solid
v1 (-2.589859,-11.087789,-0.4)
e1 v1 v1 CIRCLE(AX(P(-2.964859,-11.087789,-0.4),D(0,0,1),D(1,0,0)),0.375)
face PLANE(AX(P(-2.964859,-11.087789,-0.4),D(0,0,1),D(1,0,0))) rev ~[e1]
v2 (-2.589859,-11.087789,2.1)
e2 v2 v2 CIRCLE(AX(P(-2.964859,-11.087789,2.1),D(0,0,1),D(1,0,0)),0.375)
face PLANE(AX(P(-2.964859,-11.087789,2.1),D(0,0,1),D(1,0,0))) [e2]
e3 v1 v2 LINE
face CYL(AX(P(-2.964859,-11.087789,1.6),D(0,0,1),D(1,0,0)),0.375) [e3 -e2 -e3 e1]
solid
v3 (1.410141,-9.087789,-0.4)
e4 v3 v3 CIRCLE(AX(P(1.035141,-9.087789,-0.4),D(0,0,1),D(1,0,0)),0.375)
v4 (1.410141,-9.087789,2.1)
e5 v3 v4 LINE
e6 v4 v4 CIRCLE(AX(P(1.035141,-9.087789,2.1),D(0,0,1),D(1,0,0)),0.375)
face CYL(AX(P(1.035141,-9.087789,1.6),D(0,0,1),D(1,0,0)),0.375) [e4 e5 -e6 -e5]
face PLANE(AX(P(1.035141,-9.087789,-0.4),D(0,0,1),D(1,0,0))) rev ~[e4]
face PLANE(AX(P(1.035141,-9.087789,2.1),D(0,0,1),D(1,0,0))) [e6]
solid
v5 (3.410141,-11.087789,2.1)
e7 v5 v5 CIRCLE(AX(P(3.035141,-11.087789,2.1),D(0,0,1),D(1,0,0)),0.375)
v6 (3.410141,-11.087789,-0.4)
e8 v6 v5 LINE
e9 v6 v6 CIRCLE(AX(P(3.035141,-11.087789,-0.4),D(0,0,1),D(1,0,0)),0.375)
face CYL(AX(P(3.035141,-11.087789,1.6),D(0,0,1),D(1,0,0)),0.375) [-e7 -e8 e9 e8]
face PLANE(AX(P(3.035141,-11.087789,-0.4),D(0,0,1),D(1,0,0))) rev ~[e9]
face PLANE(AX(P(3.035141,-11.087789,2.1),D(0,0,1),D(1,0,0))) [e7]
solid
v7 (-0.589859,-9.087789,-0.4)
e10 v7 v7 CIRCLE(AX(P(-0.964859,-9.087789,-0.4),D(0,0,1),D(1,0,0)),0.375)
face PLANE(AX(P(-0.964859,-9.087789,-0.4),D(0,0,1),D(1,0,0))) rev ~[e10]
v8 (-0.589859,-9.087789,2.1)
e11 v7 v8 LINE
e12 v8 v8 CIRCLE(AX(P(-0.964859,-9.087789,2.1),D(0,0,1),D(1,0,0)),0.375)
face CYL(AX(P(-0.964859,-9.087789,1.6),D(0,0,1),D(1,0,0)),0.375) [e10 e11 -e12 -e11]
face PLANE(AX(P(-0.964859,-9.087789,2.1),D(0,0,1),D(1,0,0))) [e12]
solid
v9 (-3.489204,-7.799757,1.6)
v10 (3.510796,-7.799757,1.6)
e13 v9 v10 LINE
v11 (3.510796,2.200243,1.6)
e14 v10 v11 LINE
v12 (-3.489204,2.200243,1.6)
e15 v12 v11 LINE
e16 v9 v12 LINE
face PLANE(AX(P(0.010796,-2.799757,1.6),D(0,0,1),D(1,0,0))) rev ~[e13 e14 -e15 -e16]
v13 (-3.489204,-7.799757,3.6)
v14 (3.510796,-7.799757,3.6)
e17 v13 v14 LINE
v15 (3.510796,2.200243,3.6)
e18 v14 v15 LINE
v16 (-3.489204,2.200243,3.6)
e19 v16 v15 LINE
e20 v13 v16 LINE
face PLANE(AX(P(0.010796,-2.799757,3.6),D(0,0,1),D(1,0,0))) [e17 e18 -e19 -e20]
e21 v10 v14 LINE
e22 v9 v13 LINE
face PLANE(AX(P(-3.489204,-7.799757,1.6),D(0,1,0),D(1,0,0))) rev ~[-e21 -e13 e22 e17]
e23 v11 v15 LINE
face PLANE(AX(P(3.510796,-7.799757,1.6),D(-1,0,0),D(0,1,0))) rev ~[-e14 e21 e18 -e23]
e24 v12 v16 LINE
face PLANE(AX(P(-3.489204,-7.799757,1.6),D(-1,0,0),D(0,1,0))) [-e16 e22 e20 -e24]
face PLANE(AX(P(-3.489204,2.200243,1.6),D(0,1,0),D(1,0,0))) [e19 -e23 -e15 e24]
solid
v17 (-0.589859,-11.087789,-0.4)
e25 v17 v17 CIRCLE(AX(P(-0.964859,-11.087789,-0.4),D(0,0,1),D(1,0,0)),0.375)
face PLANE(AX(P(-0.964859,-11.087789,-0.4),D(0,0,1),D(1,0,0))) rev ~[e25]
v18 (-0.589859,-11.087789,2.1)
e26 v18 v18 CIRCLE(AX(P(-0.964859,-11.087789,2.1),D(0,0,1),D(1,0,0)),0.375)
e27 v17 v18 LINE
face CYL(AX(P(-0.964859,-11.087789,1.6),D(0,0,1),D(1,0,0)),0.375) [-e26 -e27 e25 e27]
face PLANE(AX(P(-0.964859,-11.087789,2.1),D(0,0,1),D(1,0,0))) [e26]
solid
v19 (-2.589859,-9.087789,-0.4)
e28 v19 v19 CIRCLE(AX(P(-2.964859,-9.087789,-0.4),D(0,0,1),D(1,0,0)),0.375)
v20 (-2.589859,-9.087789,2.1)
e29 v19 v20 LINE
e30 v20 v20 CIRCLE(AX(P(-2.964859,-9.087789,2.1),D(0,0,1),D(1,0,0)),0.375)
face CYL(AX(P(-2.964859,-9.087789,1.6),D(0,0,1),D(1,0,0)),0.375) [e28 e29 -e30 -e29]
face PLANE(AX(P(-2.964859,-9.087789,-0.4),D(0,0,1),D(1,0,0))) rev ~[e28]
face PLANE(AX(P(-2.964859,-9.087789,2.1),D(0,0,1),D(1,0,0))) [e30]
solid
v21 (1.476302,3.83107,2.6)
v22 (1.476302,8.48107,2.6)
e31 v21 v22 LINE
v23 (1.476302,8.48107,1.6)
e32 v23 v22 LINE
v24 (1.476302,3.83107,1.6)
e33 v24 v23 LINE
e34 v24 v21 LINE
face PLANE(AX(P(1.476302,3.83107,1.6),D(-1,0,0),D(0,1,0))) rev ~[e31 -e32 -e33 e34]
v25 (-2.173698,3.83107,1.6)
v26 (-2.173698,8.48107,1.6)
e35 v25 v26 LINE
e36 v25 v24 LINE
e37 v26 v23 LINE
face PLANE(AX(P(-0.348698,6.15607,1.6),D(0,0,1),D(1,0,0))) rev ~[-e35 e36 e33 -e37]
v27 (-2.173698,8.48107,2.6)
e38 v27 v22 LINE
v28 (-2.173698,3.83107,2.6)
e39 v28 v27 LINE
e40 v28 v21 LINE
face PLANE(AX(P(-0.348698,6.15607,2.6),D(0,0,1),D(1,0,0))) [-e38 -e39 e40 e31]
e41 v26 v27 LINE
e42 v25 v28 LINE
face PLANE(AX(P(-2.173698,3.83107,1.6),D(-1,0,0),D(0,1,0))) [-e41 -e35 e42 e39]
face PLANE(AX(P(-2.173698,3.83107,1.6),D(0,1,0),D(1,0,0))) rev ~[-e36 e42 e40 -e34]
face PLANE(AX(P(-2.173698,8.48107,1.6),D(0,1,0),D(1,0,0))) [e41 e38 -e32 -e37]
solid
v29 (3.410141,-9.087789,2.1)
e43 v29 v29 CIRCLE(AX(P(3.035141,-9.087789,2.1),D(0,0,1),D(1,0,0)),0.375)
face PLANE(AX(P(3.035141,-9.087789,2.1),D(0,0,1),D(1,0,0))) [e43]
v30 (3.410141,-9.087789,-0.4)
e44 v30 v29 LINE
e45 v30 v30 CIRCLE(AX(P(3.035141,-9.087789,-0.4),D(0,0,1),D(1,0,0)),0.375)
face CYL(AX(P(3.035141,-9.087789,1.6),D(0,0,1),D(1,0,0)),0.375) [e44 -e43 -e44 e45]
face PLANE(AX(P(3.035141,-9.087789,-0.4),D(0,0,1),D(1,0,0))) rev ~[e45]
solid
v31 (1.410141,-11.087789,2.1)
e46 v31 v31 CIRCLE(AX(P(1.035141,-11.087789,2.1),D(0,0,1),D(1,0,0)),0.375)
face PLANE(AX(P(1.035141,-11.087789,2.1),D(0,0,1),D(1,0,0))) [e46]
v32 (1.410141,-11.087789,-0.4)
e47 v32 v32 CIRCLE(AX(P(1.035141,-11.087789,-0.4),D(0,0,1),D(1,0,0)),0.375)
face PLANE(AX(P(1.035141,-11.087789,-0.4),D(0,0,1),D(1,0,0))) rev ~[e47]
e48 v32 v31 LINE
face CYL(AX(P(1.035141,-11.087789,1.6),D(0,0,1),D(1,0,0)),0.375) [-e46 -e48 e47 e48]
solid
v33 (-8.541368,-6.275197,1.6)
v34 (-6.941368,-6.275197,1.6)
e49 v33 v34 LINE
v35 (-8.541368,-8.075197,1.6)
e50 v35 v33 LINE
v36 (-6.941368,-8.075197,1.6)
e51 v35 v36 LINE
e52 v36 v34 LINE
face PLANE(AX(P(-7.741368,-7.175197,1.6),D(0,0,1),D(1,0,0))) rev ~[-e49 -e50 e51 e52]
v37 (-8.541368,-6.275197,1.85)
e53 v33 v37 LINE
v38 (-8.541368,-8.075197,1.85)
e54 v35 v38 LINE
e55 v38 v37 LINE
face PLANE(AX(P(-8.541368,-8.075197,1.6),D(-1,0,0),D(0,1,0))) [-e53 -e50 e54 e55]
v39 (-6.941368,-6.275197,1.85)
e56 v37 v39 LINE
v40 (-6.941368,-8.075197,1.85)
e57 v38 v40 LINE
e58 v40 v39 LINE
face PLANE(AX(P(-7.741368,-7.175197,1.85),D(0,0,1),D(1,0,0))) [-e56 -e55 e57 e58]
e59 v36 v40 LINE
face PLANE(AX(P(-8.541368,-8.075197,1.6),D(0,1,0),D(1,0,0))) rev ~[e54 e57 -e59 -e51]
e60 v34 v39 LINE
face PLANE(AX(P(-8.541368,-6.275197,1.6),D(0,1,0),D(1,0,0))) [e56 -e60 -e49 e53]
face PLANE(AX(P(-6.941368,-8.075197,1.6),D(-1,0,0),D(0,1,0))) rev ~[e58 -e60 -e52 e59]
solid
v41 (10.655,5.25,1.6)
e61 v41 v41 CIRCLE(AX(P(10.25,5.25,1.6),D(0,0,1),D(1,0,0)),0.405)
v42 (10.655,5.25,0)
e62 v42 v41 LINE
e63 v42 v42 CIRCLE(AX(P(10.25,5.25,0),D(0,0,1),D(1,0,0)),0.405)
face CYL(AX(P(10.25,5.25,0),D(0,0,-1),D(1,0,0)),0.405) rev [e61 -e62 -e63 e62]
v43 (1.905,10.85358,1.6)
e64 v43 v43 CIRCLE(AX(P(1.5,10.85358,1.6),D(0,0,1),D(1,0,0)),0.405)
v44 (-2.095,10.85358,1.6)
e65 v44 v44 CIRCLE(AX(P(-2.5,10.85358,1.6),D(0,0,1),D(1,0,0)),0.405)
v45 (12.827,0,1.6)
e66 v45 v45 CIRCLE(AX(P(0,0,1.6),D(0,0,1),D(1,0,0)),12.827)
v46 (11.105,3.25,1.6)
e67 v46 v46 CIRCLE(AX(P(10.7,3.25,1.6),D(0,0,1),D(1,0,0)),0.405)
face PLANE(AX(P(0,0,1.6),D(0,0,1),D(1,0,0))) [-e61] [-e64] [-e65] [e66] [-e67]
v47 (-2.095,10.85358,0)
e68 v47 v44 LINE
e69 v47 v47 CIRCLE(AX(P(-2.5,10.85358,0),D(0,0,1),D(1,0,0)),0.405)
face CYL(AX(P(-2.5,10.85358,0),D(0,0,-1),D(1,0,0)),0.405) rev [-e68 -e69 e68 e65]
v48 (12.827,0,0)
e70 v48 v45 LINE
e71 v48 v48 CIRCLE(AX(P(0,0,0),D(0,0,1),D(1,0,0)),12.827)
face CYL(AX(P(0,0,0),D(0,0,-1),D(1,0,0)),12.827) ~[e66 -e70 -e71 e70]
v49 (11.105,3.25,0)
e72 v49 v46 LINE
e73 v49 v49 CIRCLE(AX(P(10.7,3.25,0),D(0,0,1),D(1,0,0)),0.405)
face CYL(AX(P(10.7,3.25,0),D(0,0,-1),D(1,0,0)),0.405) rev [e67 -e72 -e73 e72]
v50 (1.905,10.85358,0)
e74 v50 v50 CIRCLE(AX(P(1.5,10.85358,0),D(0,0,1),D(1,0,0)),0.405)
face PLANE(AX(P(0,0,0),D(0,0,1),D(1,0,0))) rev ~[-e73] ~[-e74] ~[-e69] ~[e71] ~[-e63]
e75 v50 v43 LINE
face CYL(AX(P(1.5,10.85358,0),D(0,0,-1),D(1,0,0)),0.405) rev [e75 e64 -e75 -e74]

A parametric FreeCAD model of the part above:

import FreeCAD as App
import Part
import Sketcher
Q = App.Units.Quantity


def add_polygon(sketch, points):
    """Adds a closed chain of lines whose ends are joined by coincident constraints."""
    first, n = sketch.GeometryCount, len(points)
    for a, b in zip(points, points[1:] + points[:1]):
        sketch.addGeometry(Part.LineSegment(App.Vector(*a, 0), App.Vector(*b, 0)), False)
    for i in range(n):
        sketch.addConstraint(Sketcher.Constraint("Coincident", first + i, 2, first + (i + 1) % n, 1))

doc = App.newDocument("Part")
body = doc.addObject("PartDesign::Body", "Body")

# Sketch on XY plane
sketch1 = doc.addObject("Sketcher::SketchObject", "Sketch")
body.addObject(sketch1)
sketch1.AttachmentSupport = (doc.XY_Plane, [""])
sketch1.MapMode = "FlatFace"
sketch1.addGeometry([
    Part.Circle(App.Vector(0, 0, 0), App.Vector(0, 0, 1), 12.83),  # 0
    Part.Circle(App.Vector(10.7, 3.25, 0), App.Vector(0, 0, 1), 0.41),  # 1
    Part.Circle(App.Vector(10.25, 5.25, 0), App.Vector(0, 0, 1), 0.41),  # 2
    Part.Circle(App.Vector(-2.5, 10.85, 0), App.Vector(0, 0, 1), 0.41),  # 3
    Part.Circle(App.Vector(1.5, 10.85, 0), App.Vector(0, 0, 1), 0.41),  # 4
], False)
sketch1.addConstraint([
    Sketcher.Constraint("Coincident", 0, 3, -1, 1),
    Sketcher.Constraint("Equal", 1, 2),
    Sketcher.Constraint("Equal", 2, 3),
    Sketcher.Constraint("Equal", 3, 4),
    Sketcher.Constraint("Horizontal", 3, 3, 4, 3),
    Sketcher.Constraint("Diameter", 1, Q("0.81 mm")),
    Sketcher.Constraint("Diameter", 0, Q("25.654 mm")),
    Sketcher.Constraint("DistanceY", 1, 3, 2, 3, Q("2 mm")),
    Sketcher.Constraint("DistanceX", 3, 3, 4, 3, Q("4 mm")),
    Sketcher.Constraint("DistanceX", -1, 1, 1, 3, Q("10.7 mm")),
    Sketcher.Constraint("DistanceX", 3, 3, -1, 1, Q("2.5 mm")),
    Sketcher.Constraint("DistanceY", -1, 1, 1, 3, Q("3.25 mm")),
    Sketcher.Constraint("DistanceX", -1, 1, 2, 3, Q("10.25 mm")),
    Sketcher.Constraint("DistanceY", -1, 1, 3, 3, Q("10.85358 mm")),
])
pad1 = doc.addObject("PartDesign::Pad", "Pad")
body.addObject(pad1)
pad1.Profile = sketch1
pad1.Length = 1.6
body2 = doc.addObject("PartDesign::Body", "Body001")

# Sketch on XY plane
sketch2 = doc.addObject("Sketcher::SketchObject", "Sketch001")
body2.addObject(sketch2)
sketch2.AttachmentSupport = (doc.getObject("XY_Plane001"), [""])
sketch2.MapMode = "FlatFace"
sketch2.AttachmentOffset = App.Placement(App.Vector(0, 0, 1.6), App.Rotation())
add_polygon(sketch2, [(-3, 2), (-3, -8), (4, -8), (4, 2)])  # lines 0-3
sketch2.addConstraint([
    Sketcher.Constraint("Vertical", 0),
    Sketcher.Constraint("Horizontal", 1),
    Sketcher.Constraint("Vertical", 2),
    Sketcher.Constraint("Horizontal", 3),
    Sketcher.Constraint("DistanceX", 1, 1, 1, 2, Q("7 mm")),
    Sketcher.Constraint("DistanceY", 0, 2, 0, 1, Q("10 mm")),
    Sketcher.Constraint("DistanceX", 0, 2, -1, 1, Q("3.489204 mm")),
    Sketcher.Constraint("DistanceY", 0, 2, -1, 1, Q("7.799757 mm")),
])
pad2 = doc.addObject("PartDesign::Pad", "Pad001")
body2.addObject(pad2)
pad2.Profile = sketch2
pad2.Length = 2
body3 = doc.addObject("PartDesign::Body", "Body002")

# Sketch on XY plane
sketch3 = doc.addObject("Sketcher::SketchObject", "Sketch002")
body3.addObject(sketch3)
sketch3.AttachmentSupport = (doc.getObject("XY_Plane002"), [""])
sketch3.MapMode = "FlatFace"
sketch3.AttachmentOffset = App.Placement(App.Vector(0, 0, 1.6), App.Rotation())
add_polygon(sketch3, [(-8.5, -6.3), (-8.5, -8.1), (-6.9, -8.1), (-6.9, -6.3)])  # lines 0-3
sketch3.addConstraint([
    Sketcher.Constraint("Vertical", 0),
    Sketcher.Constraint("Horizontal", 1),
    Sketcher.Constraint("Vertical", 2),
    Sketcher.Constraint("Horizontal", 3),
    Sketcher.Constraint("DistanceX", 1, 1, 1, 2, Q("1.6 mm")),
    Sketcher.Constraint("DistanceY", 0, 2, 0, 1, Q("1.8 mm")),
    Sketcher.Constraint("DistanceX", 0, 2, -1, 1, Q("8.541368 mm")),
    Sketcher.Constraint("DistanceY", 0, 2, -1, 1, Q("8.075197 mm")),
])
pad3 = doc.addObject("PartDesign::Pad", "Pad002")
body3.addObject(pad3)
pad3.Profile = sketch3
pad3.Length = 0.25
body4 = doc.addObject("PartDesign::Body", "Body003")

# Sketch on XY plane
sketch4 = doc.addObject("Sketcher::SketchObject", "Sketch003")
body4.addObject(sketch4)
sketch4.AttachmentSupport = (doc.getObject("XY_Plane003"), [""])
sketch4.MapMode = "FlatFace"
sketch4.AttachmentOffset = App.Placement(App.Vector(0, 0, 1.6), App.Rotation())
add_polygon(sketch4, [(-2.2, 8.5), (-2.2, 3.8), (1.5, 3.8), (1.5, 8.5)])  # lines 0-3
sketch4.addConstraint([
    Sketcher.Constraint("Vertical", 0),
    Sketcher.Constraint("Horizontal", 1),
    Sketcher.Constraint("Vertical", 2),
    Sketcher.Constraint("Horizontal", 3),
    Sketcher.Constraint("DistanceX", 1, 1, 1, 2, Q("3.65 mm")),
    Sketcher.Constraint("DistanceY", 0, 2, 0, 1, Q("4.65 mm")),
    Sketcher.Constraint("DistanceY", -1, 1, 0, 2, Q("3.83107 mm")),
    Sketcher.Constraint("DistanceX", 0, 2, -1, 1, Q("2.173698 mm")),
])
pad4 = doc.addObject("PartDesign::Pad", "Pad003")
body4.addObject(pad4)
pad4.Profile = sketch4
pad4.Length = 1
body5 = doc.addObject("PartDesign::Body", "Body004")
body5.AllowCompound = True

# Sketch on XY plane
sketch5 = doc.addObject("Sketcher::SketchObject", "Sketch004")
body5.addObject(sketch5)
sketch5.AttachmentSupport = (doc.getObject("XY_Plane004"), [""])
sketch5.MapMode = "FlatFace"
sketch5.AttachmentOffset = App.Placement(App.Vector(0, 0, 1.6), App.Rotation())
sketch5.addGeometry([
    Part.Circle(App.Vector(-2.96, -9.09, 0), App.Vector(0, 0, 1), 0.38),  # 0
    Part.Circle(App.Vector(-0.96, -9.09, 0), App.Vector(0, 0, 1), 0.38),  # 1
    Part.Circle(App.Vector(1.04, -9.09, 0), App.Vector(0, 0, 1), 0.38),  # 2
    Part.Circle(App.Vector(3.04, -9.09, 0), App.Vector(0, 0, 1), 0.38),  # 3
    Part.Circle(App.Vector(-2.96, -11.09, 0), App.Vector(0, 0, 1), 0.38),  # 4
    Part.Circle(App.Vector(-0.96, -11.09, 0), App.Vector(0, 0, 1), 0.38),  # 5
    Part.Circle(App.Vector(1.04, -11.09, 0), App.Vector(0, 0, 1), 0.38),  # 6
    Part.Circle(App.Vector(3.04, -11.09, 0), App.Vector(0, 0, 1), 0.38),  # 7
], False)
sketch5.addConstraint([
    Sketcher.Constraint("Equal", 0, 1),
    Sketcher.Constraint("Equal", 1, 2),
    Sketcher.Constraint("Equal", 2, 3),
    Sketcher.Constraint("Equal", 3, 4),
    Sketcher.Constraint("Equal", 4, 5),
    Sketcher.Constraint("Equal", 5, 6),
    Sketcher.Constraint("Equal", 6, 7),
    Sketcher.Constraint("Horizontal", 0, 3, 1, 3),
    Sketcher.Constraint("Horizontal", 1, 3, 2, 3),
    Sketcher.Constraint("Horizontal", 2, 3, 3, 3),
    Sketcher.Constraint("Horizontal", 4, 3, 5, 3),
    Sketcher.Constraint("Horizontal", 5, 3, 6, 3),
    Sketcher.Constraint("Horizontal", 6, 3, 7, 3),
    Sketcher.Constraint("Vertical", 0, 3, 4, 3),
    Sketcher.Constraint("Vertical", 1, 3, 5, 3),
    Sketcher.Constraint("Vertical", 2, 3, 6, 3),
    Sketcher.Constraint("Vertical", 3, 3, 7, 3),
    Sketcher.Constraint("Diameter", 0, Q("0.75 mm")),
    Sketcher.Constraint("DistanceX", 0, 3, 1, 3, Q("2 mm")),
    Sketcher.Constraint("DistanceX", 1, 3, 2, 3, Q("2 mm")),
    Sketcher.Constraint("DistanceX", 2, 3, 3, 3, Q("2 mm")),
    Sketcher.Constraint("DistanceY", 4, 3, 0, 3, Q("2 mm")),
    Sketcher.Constraint("DistanceX", 0, 3, -1, 1, Q("2.964859 mm")),
    Sketcher.Constraint("DistanceY", 0, 3, -1, 1, Q("9.087789 mm")),
])
pad5 = doc.addObject("PartDesign::Pad", "Pad004")
body5.addObject(pad5)
pad5.Profile = sketch5
pad5.Type = "TwoLengths"
pad5.Length = 0.5
pad5.Length2 = 2

doc.recompute()
